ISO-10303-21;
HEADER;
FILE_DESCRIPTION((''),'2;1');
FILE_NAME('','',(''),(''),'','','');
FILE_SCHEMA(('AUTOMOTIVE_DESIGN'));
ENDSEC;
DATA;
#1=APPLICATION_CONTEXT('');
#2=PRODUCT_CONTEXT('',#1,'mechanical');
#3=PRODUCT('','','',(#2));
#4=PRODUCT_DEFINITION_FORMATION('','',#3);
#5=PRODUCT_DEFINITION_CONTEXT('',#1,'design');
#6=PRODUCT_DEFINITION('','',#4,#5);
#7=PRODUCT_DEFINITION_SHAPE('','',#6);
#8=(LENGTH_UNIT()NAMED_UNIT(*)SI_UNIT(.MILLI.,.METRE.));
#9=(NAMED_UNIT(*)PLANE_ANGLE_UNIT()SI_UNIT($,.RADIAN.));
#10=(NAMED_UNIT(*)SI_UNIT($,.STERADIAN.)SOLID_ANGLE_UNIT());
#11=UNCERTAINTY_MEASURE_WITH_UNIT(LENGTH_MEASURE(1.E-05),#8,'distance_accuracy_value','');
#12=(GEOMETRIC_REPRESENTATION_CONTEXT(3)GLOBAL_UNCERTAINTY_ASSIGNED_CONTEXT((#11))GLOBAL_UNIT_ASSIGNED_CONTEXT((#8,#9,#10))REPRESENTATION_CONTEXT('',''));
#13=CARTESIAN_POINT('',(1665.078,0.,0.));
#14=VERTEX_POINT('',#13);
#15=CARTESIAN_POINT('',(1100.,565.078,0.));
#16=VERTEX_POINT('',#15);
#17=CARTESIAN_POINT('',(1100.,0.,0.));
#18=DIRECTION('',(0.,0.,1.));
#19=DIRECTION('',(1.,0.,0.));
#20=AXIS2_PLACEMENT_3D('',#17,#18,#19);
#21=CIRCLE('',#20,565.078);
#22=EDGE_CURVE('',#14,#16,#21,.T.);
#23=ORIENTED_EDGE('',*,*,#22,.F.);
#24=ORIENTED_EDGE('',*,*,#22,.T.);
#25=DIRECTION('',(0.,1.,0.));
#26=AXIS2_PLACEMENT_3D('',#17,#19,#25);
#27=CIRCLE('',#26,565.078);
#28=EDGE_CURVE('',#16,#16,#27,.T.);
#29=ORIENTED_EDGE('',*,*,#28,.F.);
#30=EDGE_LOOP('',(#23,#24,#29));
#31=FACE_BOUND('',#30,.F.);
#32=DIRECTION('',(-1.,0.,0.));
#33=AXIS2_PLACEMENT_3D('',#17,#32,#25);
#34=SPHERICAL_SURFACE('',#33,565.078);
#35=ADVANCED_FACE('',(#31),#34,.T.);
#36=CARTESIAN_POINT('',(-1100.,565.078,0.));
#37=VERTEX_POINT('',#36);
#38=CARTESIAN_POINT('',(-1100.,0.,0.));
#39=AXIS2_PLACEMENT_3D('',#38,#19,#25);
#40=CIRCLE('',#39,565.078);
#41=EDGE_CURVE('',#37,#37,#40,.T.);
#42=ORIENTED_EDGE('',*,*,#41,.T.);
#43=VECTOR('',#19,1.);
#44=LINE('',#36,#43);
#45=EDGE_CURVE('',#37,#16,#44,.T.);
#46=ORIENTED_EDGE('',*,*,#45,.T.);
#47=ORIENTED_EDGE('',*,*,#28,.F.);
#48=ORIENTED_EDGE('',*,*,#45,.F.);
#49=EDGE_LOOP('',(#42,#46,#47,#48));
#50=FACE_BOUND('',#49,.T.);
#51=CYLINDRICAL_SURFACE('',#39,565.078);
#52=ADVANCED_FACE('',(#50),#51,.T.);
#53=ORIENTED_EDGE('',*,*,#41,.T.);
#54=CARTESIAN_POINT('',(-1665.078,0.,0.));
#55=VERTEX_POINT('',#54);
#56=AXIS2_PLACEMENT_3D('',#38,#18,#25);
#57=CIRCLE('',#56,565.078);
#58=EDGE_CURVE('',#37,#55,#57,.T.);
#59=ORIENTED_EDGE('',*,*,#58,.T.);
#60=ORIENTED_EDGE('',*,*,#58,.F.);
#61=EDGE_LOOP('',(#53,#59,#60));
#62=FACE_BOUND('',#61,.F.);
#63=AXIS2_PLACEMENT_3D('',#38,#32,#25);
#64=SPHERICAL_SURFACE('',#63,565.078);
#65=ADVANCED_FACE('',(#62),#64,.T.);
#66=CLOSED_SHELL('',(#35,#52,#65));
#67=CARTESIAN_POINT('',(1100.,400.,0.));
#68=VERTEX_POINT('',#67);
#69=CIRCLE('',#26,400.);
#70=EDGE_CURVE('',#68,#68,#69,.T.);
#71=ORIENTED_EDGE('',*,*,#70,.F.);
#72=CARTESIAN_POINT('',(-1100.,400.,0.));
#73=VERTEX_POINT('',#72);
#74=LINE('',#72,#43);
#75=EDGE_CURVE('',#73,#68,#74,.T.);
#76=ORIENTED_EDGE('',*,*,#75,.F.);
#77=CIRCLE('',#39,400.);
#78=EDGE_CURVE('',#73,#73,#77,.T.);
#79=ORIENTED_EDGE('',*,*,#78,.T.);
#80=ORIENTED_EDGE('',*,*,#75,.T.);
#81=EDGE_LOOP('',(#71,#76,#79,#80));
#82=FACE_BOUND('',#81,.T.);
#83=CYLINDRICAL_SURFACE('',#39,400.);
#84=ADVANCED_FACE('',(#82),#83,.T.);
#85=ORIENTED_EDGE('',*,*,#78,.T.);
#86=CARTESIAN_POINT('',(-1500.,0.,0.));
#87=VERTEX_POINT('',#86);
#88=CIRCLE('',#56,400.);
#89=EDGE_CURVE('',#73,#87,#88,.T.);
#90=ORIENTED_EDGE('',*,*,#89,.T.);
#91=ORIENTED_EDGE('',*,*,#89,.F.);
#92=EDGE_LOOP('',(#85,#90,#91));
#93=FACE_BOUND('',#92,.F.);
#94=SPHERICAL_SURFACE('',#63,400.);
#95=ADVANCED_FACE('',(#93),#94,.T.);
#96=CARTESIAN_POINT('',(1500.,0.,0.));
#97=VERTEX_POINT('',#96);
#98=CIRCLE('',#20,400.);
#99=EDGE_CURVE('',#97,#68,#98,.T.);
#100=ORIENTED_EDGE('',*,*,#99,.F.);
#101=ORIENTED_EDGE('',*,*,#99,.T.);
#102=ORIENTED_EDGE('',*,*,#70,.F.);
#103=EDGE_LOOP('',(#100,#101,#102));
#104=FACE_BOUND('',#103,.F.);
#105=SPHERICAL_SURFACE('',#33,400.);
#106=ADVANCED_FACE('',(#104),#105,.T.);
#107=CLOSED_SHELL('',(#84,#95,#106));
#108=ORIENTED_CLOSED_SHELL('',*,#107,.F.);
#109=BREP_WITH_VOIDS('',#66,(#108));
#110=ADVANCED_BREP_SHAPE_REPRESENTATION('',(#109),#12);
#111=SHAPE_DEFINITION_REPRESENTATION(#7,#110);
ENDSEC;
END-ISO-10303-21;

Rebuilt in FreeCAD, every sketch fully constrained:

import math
import FreeCAD as App
import Part
import Sketcher
Q = App.Units.Quantity

doc = App.newDocument("Part")
params = doc.addObject("Spreadsheet::Sheet", "Params")
for row, (alias, value) in enumerate([
    ("sketch1_radius", "400 mm"),
    ("revolution_angle", "360 deg"),
], start=1):
    params.set(f"A{row}", alias)
    params.set(f"B{row}", "=" + value)
    params.setAlias(f"B{row}", alias)

body = doc.addObject("PartDesign::Body", "Body")

# Sketch on XY plane
sketch1 = doc.addObject("Sketcher::SketchObject", "Sketch")
body.addObject(sketch1)
sketch1.AttachmentSupport = (doc.XY_Plane, [""])
sketch1.MapMode = "FlatFace"
sketch1.addGeometry([
    Part.LineSegment(App.Vector(-1665, 0, 0), App.Vector(-1500, 0, 0)),  # 0
    Part.ArcOfCircle(Part.Circle(App.Vector(-1100, 0, 0), App.Vector(0, 0, 1), 400), math.radians(90), math.radians(180)),  # 1
    Part.LineSegment(App.Vector(-1100, 400, 0), App.Vector(1100, 400, 0)),  # 2
    Part.ArcOfCircle(Part.Circle(App.Vector(1100, 0, 0), App.Vector(0, 0, 1), 400), math.radians(0), math.radians(90)),  # 3
    Part.LineSegment(App.Vector(1500, 0, 0), App.Vector(1665, 0, 0)),  # 4
    Part.ArcOfCircle(Part.Circle(App.Vector(1100, 0, 0), App.Vector(0, 0, 1), 565), math.radians(0), math.radians(90)),  # 5
    Part.LineSegment(App.Vector(1100, 565, 0), App.Vector(-1100, 565, 0)),  # 6
    Part.ArcOfCircle(Part.Circle(App.Vector(-1100, 0, 0), App.Vector(0, 0, 1), 565), math.radians(90), math.radians(180)),  # 7
], False)
sketch1.addConstraint([
    Sketcher.Constraint("Coincident", 0, 2, 1, 2),
    Sketcher.Constraint("Tangent", 1, 1, 2, 1),
    Sketcher.Constraint("Tangent", 2, 2, 3, 2),
    Sketcher.Constraint("Coincident", 3, 1, 4, 1),
    Sketcher.Constraint("Coincident", 4, 2, 5, 1),
    Sketcher.Constraint("Tangent", 5, 2, 6, 1),
    Sketcher.Constraint("Tangent", 6, 2, 7, 1),
    Sketcher.Constraint("Coincident", 7, 2, 0, 1),
    Sketcher.Constraint("Horizontal", 0),
    Sketcher.Constraint("Horizontal", 2),
    Sketcher.Constraint("Horizontal", 4),
    Sketcher.Constraint("Horizontal", 6),
    Sketcher.Constraint("Coincident", 5, 3, 3, 3),
    Sketcher.Constraint("Coincident", 7, 3, 1, 3),
    Sketcher.Constraint("Equal", 1, 3),
    Sketcher.Constraint("Symmetric", 1, 3, 3, 3, -1, 1),
    Sketcher.Constraint("PointOnObject", 0, 2, -1),
    Sketcher.Constraint("PointOnObject", 4, 2, -1),
    Sketcher.Constraint("Radius", 1, Q("400 mm")),
    Sketcher.Constraint("DistanceX", 1, 3, -1, 1, Q("1100 mm")),
    Sketcher.Constraint("Radius", 5, Q("565.078 mm")),
])
sketch1.setExpression("Constraints[18]", "Params.sketch1_radius")
revolution = doc.addObject("PartDesign::Revolution", "Revolution")
body.addObject(revolution)
revolution.Profile = sketch1
revolution.ReferenceAxis = (sketch1, ["H_Axis"])
revolution.setExpression("Angle", "Params.revolution_angle")

doc.recompute()
